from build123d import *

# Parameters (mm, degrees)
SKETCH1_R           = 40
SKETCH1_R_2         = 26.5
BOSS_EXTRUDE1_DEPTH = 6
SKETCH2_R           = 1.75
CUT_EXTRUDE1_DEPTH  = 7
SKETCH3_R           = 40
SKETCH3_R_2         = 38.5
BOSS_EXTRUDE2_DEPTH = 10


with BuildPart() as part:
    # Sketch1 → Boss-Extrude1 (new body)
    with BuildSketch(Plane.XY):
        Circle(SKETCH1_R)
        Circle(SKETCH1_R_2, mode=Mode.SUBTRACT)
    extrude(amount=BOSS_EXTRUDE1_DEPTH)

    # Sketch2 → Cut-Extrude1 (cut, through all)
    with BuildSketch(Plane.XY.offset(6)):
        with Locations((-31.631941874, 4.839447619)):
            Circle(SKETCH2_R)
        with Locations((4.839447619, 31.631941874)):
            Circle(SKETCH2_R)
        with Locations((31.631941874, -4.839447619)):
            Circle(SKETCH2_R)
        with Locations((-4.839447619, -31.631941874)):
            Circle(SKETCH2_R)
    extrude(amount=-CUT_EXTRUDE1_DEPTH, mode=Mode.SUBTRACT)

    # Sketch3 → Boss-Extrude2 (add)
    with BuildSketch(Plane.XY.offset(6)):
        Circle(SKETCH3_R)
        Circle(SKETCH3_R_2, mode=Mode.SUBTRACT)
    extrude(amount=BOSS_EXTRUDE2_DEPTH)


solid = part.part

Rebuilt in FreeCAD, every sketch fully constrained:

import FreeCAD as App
import Part
import Sketcher
from FreeCAD import Vector

doc = App.newDocument("Part")
body = doc.addObject("PartDesign::Body", "Body")

# Sketch on XY plane
sketch1 = body.newObject("Sketcher::SketchObject", "Sketch")
sketch1.AttachmentSupport = (doc.getObject("XY_Plane"), [""])
sketch1.MapMode = "FlatFace"
sketch1.addGeometry(Part.Circle(Vector(0, 0, 0), Vector(0, 0, 1), 40), False)
sketch1.addGeometry(Part.Circle(Vector(0, 0, 0), Vector(0, 0, 1), 26), False)
sketch1.addConstraint(Sketcher.Constraint("Coincident", 0, 3, -1, 1))
sketch1.addConstraint(Sketcher.Constraint("Coincident", 1, 3, -1, 1))
sketch1.addConstraint(Sketcher.Constraint("Diameter", 0, 80.0))
sketch1.addConstraint(Sketcher.Constraint("Diameter", 1, 53.0))
pad1 = body.newObject("PartDesign::Pad", "Pad")
pad1.Profile = sketch1
pad1.Length = 6

# Sketch on XY plane
sketch2 = body.newObject("Sketcher::SketchObject", "Sketch001")
sketch2.AttachmentSupport = (doc.getObject("XY_Plane"), [""])
sketch2.MapMode = "FlatFace"
sketch2.AttachmentOffset = App.Placement(Vector(0, 0, 6), App.Rotation())
sketch2.addGeometry(Part.Circle(Vector(-31.6, 4.8, 0), Vector(0, 0, 1), 1.8), False)
sketch2.addGeometry(Part.Circle(Vector(4.8, 31.6, 0), Vector(0, 0, 1), 1.8), False)
sketch2.addGeometry(Part.Circle(Vector(31.6, -4.8, 0), Vector(0, 0, 1), 1.8), False)
sketch2.addGeometry(Part.Circle(Vector(-4.8, -31.6, 0), Vector(0, 0, 1), 1.8), False)
sketch2.addConstraint(Sketcher.Constraint("Equal", 0, 1))
sketch2.addConstraint(Sketcher.Constraint("Equal", 1, 2))
sketch2.addConstraint(Sketcher.Constraint("Equal", 2, 3))
sketch2.addConstraint(Sketcher.Constraint("Symmetric", 0, 3, 2, 3, -1, 1))
sketch2.addConstraint(Sketcher.Constraint("Symmetric", 1, 3, 3, 3, -1, 1))
sketch2.addConstraint(Sketcher.Constraint("Diameter", 0, 3.5))
sketch2.addConstraint(Sketcher.Constraint("DistanceX", 0, 3, -1, 1, 31.631942))
sketch2.addConstraint(Sketcher.Constraint("DistanceY", -1, 1, 1, 3, 31.631942))
sketch2.addConstraint(Sketcher.Constraint("DistanceX", 0, 3, 1, 3, 36.471389))
sketch2.addConstraint(Sketcher.Constraint("DistanceY", 2, 3, 1, 3, 36.471389))
pocket1 = body.newObject("PartDesign::Pocket", "Pocket")
pocket1.Profile = sketch2
pocket1.Type = "ThroughAll"

# Sketch on XY plane
sketch3 = body.newObject("Sketcher::SketchObject", "Sketch002")
sketch3.AttachmentSupport = (doc.getObject("XY_Plane"), [""])
sketch3.MapMode = "FlatFace"
sketch3.AttachmentOffset = App.Placement(Vector(0, 0, 6), App.Rotation())
sketch3.addGeometry(Part.Circle(Vector(0, 0, 0), Vector(0, 0, 1), 40), False)
sketch3.addGeometry(Part.Circle(Vector(0, 0, 0), Vector(0, 0, 1), 38), False)
sketch3.addConstraint(Sketcher.Constraint("Coincident", 0, 3, -1, 1))
sketch3.addConstraint(Sketcher.Constraint("Coincident", 1, 3, -1, 1))
sketch3.addConstraint(Sketcher.Constraint("Diameter", 0, 80.0))
sketch3.addConstraint(Sketcher.Constraint("Diameter", 1, 77.0))
pad2 = body.newObject("PartDesign::Pad", "Pad001")
pad2.Profile = sketch3
pad2.Length = 10

doc.recompute()
